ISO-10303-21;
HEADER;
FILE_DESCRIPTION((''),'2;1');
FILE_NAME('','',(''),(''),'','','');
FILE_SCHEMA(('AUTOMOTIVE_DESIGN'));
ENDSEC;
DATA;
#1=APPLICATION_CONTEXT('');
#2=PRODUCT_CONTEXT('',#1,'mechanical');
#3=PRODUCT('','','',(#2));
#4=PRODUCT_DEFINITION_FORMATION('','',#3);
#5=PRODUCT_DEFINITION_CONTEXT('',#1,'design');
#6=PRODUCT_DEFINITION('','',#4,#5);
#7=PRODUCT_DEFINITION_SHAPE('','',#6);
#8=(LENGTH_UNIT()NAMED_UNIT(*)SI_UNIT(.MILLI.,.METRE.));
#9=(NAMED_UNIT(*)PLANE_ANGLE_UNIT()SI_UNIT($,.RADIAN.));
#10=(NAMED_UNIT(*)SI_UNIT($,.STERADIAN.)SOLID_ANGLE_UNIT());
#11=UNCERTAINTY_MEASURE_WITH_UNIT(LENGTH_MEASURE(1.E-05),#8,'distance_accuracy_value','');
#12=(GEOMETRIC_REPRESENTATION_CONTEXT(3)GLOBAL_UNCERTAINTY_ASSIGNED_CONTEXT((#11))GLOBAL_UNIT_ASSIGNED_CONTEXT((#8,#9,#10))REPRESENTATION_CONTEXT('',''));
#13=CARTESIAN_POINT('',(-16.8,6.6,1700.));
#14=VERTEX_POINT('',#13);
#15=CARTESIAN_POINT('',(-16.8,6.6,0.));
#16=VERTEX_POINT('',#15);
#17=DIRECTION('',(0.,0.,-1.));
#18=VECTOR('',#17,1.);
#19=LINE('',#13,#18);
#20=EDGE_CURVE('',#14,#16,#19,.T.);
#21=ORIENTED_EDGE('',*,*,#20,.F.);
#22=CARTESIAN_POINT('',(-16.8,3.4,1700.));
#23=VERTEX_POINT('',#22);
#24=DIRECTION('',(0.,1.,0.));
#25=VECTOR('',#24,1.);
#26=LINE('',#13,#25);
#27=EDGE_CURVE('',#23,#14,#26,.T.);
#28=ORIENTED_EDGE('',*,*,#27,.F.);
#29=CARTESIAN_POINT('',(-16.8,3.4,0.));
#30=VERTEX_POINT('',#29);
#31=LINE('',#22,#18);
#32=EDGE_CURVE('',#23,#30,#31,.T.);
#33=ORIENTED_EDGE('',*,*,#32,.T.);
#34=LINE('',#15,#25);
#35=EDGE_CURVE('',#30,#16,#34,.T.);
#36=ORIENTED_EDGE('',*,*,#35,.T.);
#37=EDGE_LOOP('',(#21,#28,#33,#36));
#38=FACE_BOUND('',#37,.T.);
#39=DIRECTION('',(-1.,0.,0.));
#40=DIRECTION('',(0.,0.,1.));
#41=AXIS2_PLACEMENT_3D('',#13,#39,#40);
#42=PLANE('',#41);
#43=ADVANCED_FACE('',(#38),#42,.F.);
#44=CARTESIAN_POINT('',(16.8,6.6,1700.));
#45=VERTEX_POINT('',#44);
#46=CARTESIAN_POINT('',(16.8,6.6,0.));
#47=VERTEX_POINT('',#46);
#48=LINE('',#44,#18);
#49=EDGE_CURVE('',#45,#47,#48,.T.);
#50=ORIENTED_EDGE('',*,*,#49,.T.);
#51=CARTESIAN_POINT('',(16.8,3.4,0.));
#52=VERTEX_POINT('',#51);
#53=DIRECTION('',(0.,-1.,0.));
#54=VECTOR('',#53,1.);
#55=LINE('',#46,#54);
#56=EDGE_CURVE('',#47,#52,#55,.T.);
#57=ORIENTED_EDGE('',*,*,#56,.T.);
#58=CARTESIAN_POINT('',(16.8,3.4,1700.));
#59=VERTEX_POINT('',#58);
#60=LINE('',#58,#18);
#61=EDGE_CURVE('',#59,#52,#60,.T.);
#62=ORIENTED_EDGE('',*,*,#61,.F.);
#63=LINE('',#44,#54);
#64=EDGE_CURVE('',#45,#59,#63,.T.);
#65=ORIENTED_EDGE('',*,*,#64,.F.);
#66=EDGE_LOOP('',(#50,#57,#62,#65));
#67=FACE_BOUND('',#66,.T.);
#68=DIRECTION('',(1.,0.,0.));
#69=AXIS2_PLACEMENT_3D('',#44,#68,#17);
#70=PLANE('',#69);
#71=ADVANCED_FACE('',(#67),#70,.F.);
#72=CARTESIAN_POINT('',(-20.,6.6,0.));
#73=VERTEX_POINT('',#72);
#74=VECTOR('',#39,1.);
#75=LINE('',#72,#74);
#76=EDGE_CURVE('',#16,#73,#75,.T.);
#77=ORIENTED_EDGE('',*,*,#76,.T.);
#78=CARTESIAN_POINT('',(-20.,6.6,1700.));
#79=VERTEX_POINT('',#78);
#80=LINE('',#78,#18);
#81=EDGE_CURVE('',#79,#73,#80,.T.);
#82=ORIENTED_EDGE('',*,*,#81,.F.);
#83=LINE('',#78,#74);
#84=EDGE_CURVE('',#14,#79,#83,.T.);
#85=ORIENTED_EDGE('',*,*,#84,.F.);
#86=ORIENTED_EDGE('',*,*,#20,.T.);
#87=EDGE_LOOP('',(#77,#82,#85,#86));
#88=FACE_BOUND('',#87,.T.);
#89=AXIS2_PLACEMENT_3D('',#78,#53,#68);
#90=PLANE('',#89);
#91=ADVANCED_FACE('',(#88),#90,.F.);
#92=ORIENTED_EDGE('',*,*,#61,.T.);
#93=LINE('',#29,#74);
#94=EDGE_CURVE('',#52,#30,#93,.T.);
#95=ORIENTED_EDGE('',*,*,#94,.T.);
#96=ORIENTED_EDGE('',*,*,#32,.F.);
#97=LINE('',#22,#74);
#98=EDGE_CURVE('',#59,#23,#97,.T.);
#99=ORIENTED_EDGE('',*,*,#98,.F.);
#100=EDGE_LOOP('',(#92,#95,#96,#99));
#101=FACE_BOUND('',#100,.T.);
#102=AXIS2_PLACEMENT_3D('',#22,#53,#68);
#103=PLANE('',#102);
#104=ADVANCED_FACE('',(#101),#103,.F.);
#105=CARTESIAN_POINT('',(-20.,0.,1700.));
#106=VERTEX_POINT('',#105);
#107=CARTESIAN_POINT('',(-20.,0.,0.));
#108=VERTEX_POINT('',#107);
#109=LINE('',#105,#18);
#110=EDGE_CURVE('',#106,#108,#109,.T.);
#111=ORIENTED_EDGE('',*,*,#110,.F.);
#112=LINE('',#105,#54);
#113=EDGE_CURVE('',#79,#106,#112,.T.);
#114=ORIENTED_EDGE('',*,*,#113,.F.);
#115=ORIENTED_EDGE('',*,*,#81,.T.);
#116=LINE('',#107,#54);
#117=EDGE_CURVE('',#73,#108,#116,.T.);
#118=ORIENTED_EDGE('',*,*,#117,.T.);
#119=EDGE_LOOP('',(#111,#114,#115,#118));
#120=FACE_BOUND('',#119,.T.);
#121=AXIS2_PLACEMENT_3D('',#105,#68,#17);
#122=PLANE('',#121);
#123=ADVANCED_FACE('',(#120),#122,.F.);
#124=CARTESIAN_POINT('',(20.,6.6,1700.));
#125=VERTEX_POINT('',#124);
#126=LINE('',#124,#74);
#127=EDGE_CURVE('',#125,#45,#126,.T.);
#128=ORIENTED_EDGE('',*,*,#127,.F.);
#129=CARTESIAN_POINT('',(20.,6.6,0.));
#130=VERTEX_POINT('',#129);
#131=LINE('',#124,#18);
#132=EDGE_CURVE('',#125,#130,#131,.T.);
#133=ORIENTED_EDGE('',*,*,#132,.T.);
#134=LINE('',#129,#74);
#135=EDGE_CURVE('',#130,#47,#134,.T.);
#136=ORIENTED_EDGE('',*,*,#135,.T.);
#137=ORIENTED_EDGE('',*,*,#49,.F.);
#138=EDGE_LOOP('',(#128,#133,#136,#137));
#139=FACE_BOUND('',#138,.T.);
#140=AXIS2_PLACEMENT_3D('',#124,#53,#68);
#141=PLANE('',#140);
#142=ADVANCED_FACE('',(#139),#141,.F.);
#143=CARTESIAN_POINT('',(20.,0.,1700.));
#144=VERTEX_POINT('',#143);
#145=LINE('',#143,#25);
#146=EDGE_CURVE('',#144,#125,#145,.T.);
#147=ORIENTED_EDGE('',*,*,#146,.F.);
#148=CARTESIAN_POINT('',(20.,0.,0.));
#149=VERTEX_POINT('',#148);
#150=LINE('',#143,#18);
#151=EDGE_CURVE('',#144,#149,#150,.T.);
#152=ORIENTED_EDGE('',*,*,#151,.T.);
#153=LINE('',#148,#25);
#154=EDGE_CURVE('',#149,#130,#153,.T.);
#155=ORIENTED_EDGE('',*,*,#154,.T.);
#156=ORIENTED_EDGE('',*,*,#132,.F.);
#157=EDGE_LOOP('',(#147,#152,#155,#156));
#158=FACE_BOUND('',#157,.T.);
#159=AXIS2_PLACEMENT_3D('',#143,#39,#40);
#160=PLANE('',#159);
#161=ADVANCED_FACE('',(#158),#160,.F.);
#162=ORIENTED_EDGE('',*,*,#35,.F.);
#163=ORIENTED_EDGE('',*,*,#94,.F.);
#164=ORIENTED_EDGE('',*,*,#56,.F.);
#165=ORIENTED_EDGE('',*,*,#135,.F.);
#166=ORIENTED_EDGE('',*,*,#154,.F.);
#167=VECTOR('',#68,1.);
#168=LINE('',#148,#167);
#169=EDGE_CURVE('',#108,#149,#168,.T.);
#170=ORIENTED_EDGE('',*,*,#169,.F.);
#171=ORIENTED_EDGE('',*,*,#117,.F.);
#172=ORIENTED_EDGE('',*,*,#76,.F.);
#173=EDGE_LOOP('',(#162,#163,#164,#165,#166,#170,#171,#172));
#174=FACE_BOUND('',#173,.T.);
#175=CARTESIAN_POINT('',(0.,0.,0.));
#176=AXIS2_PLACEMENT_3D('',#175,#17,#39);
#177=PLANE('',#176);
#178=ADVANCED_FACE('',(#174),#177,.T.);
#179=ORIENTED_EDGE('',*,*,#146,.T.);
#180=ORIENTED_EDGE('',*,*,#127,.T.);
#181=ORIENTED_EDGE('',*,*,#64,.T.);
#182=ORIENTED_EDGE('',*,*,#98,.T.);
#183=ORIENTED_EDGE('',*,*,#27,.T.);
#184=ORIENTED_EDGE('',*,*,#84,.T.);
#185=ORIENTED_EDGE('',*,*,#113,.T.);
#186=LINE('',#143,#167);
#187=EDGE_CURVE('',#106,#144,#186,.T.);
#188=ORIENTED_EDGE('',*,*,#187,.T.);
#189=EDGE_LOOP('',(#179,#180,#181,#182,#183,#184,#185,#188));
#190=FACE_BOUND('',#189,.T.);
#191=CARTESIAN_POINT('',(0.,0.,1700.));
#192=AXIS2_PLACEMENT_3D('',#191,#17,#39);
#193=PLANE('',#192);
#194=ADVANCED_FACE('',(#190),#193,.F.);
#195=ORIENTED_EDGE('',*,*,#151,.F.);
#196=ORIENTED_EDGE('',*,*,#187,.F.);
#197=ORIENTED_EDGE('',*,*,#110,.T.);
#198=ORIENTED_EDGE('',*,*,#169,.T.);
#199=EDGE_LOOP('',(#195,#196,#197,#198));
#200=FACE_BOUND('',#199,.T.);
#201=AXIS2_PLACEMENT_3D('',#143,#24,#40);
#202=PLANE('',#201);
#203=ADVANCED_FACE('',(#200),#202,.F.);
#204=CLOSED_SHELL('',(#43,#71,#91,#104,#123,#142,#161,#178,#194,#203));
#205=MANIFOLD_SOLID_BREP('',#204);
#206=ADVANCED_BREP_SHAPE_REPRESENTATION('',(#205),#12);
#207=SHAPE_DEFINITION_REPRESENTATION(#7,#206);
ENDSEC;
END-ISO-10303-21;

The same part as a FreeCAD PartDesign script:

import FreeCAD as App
import Part
import Sketcher
Q = App.Units.Quantity

doc = App.newDocument("Part")
params = doc.addObject("Spreadsheet::Sheet", "Params")
for row, (alias, value) in enumerate([
    ("sketch1_width", "40 mm"),
    ("sketch1_width2", "3.2 mm"),
    ("sketch1_height", "6.6 mm"),
    ("pad1_length", "1700 mm"),
], start=1):
    params.set(f"A{row}", alias)
    params.set(f"B{row}", "=" + value)
    params.setAlias(f"B{row}", alias)

body = doc.addObject("PartDesign::Body", "Body")

sketch1 = doc.addObject("Sketcher::SketchObject", "Sketch")
body.addObject(sketch1)
sketch1.AttachmentSupport = (doc.XY_Plane, [""])
sketch1.MapMode = "FlatFace"
sketch1.addGeometry(Part.LineSegment(App.Vector(-20, 0, 0), App.Vector(20, 0, 0)), False)
sketch1.addGeometry(Part.LineSegment(App.Vector(20, 0, 0), App.Vector(20, 6.6, 0)), False)
sketch1.addGeometry(Part.LineSegment(App.Vector(20, 6.6, 0), App.Vector(16.8, 6.6, 0)), False)
sketch1.addGeometry(Part.LineSegment(App.Vector(16.8, 6.6, 0), App.Vector(16.8, 3.4, 0)), False)
sketch1.addGeometry(Part.LineSegment(App.Vector(16.8, 3.4, 0), App.Vector(-16.8, 3.4, 0)), False)
sketch1.addGeometry(Part.LineSegment(App.Vector(-16.8, 3.4, 0), App.Vector(-16.8, 6.6, 0)), False)
sketch1.addGeometry(Part.LineSegment(App.Vector(-16.8, 6.6, 0), App.Vector(-20, 6.6, 0)), False)
sketch1.addGeometry(Part.LineSegment(App.Vector(-20, 6.6, 0), App.Vector(-20, 0, 0)), False)
sketch1.addConstraint(Sketcher.Constraint("Coincident", 0, 2, 1, 1))
sketch1.addConstraint(Sketcher.Constraint("Coincident", 1, 2, 2, 1))
sketch1.addConstraint(Sketcher.Constraint("Coincident", 2, 2, 3, 1))
sketch1.addConstraint(Sketcher.Constraint("Coincident", 3, 2, 4, 1))
sketch1.addConstraint(Sketcher.Constraint("Coincident", 4, 2, 5, 1))
sketch1.addConstraint(Sketcher.Constraint("Coincident", 5, 2, 6, 1))
sketch1.addConstraint(Sketcher.Constraint("Coincident", 6, 2, 7, 1))
sketch1.addConstraint(Sketcher.Constraint("Coincident", 7, 2, 0, 1))
sketch1.addConstraint(Sketcher.Constraint("Horizontal", 0))
sketch1.addConstraint(Sketcher.Constraint("Vertical", 1))
sketch1.addConstraint(Sketcher.Constraint("Horizontal", 2))
sketch1.addConstraint(Sketcher.Constraint("Vertical", 3))
sketch1.addConstraint(Sketcher.Constraint("Horizontal", 4))
sketch1.addConstraint(Sketcher.Constraint("Vertical", 5))
sketch1.addConstraint(Sketcher.Constraint("Horizontal", 6))
sketch1.addConstraint(Sketcher.Constraint("Vertical", 7))
sketch1.addConstraint(Sketcher.Constraint("Symmetric", 0, 2, 7, 2, -1, 1))
sketch1.addConstraint(Sketcher.Constraint("Symmetric", 2, 2, 5, 2, -2))
sketch1.addConstraint(Sketcher.Constraint("Equal", 6, 3))
sketch1.addConstraint(Sketcher.Constraint("DistanceX", 0, 1, 0, 2, Q("40 mm")))
sketch1.addConstraint(Sketcher.Constraint("DistanceX", 2, 2, 2, 1, Q("3.2 mm")))
sketch1.addConstraint(Sketcher.Constraint("DistanceY", 1, 1, 1, 2, Q("6.6 mm")))
sketch1.setExpression("Constraints[19]", "Params.sketch1_width")
sketch1.setExpression("Constraints[20]", "Params.sketch1_width2")
sketch1.setExpression("Constraints[21]", "Params.sketch1_height")
pad1 = doc.addObject("PartDesign::Pad", "Pad")
body.addObject(pad1)
pad1.Profile = sketch1
pad1.setExpression("Length", "Params.pad1_length")

doc.recompute()
